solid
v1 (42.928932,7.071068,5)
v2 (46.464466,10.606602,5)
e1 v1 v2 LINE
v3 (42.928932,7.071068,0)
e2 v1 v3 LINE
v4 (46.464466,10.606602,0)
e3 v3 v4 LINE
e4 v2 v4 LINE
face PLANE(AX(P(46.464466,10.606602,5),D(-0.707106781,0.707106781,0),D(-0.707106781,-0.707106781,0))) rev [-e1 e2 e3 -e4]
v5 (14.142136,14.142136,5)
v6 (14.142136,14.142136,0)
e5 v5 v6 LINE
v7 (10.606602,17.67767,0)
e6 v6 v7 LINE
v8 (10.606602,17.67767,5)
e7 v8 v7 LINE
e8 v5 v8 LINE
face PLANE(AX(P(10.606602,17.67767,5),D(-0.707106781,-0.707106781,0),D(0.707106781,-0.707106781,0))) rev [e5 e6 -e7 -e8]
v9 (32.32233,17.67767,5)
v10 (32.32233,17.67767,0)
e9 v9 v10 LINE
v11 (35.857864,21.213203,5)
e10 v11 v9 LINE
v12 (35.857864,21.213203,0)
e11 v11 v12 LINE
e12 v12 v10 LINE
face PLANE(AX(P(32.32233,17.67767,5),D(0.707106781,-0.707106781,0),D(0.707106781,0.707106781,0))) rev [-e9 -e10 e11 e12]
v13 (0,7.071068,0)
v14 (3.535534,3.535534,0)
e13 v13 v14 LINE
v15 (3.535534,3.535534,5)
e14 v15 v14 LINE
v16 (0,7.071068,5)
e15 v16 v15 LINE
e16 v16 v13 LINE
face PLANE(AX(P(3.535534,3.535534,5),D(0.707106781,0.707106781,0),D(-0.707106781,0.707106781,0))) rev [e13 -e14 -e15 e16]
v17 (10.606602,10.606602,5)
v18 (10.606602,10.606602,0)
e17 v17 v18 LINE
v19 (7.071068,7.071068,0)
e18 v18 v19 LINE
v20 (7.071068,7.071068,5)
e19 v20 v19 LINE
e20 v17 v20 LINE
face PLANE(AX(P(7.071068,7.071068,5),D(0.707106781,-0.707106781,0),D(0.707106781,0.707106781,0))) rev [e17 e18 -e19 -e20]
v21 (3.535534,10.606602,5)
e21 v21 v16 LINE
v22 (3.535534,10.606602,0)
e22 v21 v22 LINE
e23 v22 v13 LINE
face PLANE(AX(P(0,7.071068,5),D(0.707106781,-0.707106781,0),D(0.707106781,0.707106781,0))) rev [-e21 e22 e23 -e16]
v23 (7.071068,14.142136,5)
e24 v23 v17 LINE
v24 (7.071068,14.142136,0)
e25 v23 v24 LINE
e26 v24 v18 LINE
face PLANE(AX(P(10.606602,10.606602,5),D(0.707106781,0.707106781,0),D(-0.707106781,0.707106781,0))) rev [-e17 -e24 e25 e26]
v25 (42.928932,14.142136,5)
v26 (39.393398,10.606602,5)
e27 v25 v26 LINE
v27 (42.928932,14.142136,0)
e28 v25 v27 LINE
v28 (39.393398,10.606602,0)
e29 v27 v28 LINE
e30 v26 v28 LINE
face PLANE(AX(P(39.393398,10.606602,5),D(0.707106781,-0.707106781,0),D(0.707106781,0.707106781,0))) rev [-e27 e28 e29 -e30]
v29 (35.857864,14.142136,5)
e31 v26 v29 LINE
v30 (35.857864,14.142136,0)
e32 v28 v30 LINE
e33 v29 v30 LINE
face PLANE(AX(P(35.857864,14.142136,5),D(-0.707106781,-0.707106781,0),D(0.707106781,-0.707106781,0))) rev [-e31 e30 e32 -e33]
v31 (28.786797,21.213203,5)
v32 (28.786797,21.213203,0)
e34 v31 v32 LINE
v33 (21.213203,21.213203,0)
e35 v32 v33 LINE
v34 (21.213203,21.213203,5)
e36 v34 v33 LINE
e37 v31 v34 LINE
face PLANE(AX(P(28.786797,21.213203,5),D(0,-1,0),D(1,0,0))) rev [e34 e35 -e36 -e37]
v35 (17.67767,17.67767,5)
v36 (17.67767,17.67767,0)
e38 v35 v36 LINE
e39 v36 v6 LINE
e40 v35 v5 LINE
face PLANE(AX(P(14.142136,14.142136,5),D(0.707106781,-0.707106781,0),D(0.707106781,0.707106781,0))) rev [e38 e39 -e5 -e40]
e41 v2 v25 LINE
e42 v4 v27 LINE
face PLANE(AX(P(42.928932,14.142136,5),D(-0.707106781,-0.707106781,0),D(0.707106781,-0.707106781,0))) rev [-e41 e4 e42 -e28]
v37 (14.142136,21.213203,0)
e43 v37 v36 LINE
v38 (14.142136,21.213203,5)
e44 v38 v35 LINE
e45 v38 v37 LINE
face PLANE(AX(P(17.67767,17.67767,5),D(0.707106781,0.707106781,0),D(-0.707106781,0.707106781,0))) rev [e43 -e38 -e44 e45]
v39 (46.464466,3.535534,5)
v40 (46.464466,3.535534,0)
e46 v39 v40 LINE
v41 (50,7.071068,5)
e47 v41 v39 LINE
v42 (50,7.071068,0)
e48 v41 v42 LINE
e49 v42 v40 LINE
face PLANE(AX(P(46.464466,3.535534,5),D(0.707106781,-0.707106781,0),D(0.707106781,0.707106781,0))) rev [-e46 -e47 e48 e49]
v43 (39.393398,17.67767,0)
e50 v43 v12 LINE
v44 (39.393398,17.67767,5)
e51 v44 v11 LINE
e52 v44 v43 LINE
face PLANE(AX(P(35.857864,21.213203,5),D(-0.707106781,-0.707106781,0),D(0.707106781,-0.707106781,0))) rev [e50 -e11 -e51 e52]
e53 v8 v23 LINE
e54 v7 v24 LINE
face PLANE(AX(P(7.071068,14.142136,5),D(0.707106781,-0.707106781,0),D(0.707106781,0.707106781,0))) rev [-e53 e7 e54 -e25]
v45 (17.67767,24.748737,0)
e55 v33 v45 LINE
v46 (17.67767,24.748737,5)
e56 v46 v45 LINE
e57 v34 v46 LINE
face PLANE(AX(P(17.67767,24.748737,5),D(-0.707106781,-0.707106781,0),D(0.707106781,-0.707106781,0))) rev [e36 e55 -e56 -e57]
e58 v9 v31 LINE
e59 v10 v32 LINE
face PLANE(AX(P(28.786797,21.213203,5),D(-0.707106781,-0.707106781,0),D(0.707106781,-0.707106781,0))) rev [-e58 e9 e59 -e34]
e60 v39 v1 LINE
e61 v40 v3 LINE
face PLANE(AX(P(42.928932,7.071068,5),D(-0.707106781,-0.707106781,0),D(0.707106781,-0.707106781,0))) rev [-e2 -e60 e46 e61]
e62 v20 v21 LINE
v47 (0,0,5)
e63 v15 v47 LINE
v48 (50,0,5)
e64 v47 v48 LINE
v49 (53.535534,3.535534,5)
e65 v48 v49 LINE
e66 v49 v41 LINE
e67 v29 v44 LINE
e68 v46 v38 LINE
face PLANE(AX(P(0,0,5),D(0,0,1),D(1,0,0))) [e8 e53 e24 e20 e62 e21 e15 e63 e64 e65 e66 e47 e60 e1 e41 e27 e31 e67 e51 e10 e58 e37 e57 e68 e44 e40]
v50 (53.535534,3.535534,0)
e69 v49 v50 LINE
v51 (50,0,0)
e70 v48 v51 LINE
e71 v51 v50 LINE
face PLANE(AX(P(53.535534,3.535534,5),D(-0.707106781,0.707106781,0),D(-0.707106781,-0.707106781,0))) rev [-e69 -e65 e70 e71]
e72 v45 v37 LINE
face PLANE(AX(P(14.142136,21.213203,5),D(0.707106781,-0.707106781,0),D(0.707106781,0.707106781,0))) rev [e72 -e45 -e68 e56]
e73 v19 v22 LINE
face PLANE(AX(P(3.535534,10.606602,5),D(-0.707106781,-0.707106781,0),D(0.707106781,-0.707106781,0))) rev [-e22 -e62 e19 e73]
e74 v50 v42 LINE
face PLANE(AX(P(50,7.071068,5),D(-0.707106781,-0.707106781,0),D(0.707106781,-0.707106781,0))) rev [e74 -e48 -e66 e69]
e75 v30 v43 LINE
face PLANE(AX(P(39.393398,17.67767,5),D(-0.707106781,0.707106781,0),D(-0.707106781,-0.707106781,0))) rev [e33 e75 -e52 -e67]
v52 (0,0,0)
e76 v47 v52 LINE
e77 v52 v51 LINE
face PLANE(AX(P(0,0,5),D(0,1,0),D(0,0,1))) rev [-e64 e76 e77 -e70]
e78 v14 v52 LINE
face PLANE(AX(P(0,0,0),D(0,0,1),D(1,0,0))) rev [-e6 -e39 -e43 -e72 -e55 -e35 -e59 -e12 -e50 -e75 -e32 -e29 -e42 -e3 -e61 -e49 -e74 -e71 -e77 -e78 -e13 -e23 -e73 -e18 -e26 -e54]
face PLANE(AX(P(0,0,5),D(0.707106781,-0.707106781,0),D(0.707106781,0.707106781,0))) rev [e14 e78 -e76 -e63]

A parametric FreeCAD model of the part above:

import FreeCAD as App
import Part
import Sketcher

V = App.Vector
Q = App.Units.Quantity


def add_polygon(sketch, points):
    """Adds a closed chain of lines whose ends are joined by coincident constraints."""
    first, n = sketch.GeometryCount, len(points)
    for a, b in zip(points, points[1:] + points[:1]):
        sketch.addGeometry(Part.LineSegment(App.Vector(*a, 0), App.Vector(*b, 0)), False)
    for i in range(n):
        sketch.addConstraint(Sketcher.Constraint("Coincident", first + i, 2, first + (i + 1) % n, 1))

doc = App.newDocument("Part")
body = doc.addObject("PartDesign::Body", "Body")

# Sketch on XY plane
sketch1 = body.newObject("Sketcher::SketchObject", "Sketch")
sketch1.AttachmentSupport = (doc.getObject("XY_Plane"), [""])
sketch1.MapMode = "FlatFace"
add_polygon(sketch1, [(0, 0), (50, 0), (54, 4), (50, 7), (46, 4), (43, 7), (46, 11), (43, 14), (39, 11), (36, 14), (39, 18), (36, 21), (32, 18), (29, 21), (21, 21), (18, 25), (14, 21), (18, 18), (14, 14), (11, 18), (7, 14), (11, 11), (7, 7), (4, 11), (0, 7), (4, 4)])  # lines 0-25
sketch1.addConstraint([
    Sketcher.Constraint("Horizontal", 0),
    Sketcher.Constraint("Horizontal", 13),
    Sketcher.Constraint("Coincident", 25, 2, -1, 1),
    Sketcher.Constraint("PointOnObject", 23, 2, -2),
    Sketcher.Constraint("Perpendicular", 1, 2),
    Sketcher.Constraint("Perpendicular", 2, 3),
    Sketcher.Constraint("Perpendicular", 3, 4),
    Sketcher.Constraint("Perpendicular", 4, 5),
    Sketcher.Constraint("Perpendicular", 5, 6),
    Sketcher.Constraint("Perpendicular", 6, 7),
    Sketcher.Constraint("Perpendicular", 7, 8),
    Sketcher.Constraint("Perpendicular", 8, 9),
    Sketcher.Constraint("Perpendicular", 9, 10),
    Sketcher.Constraint("Perpendicular", 10, 11),
    Sketcher.Constraint("Perpendicular", 11, 12),
    Sketcher.Constraint("Parallel", 12, 14),
    Sketcher.Constraint("Perpendicular", 14, 15),
    Sketcher.Constraint("Perpendicular", 15, 16),
    Sketcher.Constraint("Perpendicular", 16, 17),
    Sketcher.Constraint("Perpendicular", 17, 18),
    Sketcher.Constraint("Perpendicular", 18, 19),
    Sketcher.Constraint("Perpendicular", 19, 20),
    Sketcher.Constraint("Perpendicular", 20, 21),
    Sketcher.Constraint("Perpendicular", 21, 22),
    Sketcher.Constraint("Perpendicular", 22, 23),
    Sketcher.Constraint("Perpendicular", 23, 24),
    Sketcher.Constraint("Perpendicular", 24, 25),
    Sketcher.Constraint("Horizontal", 1, 2, 3, 2),
    Sketcher.Constraint("Horizontal", 2, 2, 4, 2),
    Sketcher.Constraint("Horizontal", 5, 2, 7, 2),
    Sketcher.Constraint("Horizontal", 6, 2, 8, 2),
    Sketcher.Constraint("Horizontal", 9, 2, 11, 2),
    Sketcher.Constraint("Horizontal", 10, 2, 12, 2),
    Sketcher.Constraint("Horizontal", 13, 2, 15, 2),
    Sketcher.Constraint("Horizontal", 11, 2, 16, 2),
    Sketcher.Constraint("Horizontal", 8, 2, 17, 2),
    Sketcher.Constraint("Horizontal", 16, 2, 18, 2),
    Sketcher.Constraint("Horizontal", 17, 2, 19, 2),
    Sketcher.Constraint("Horizontal", 7, 2, 20, 2),
    Sketcher.Constraint("Horizontal", 4, 2, 21, 2),
    Sketcher.Constraint("Horizontal", 20, 2, 22, 2),
    Sketcher.Constraint("Horizontal", 21, 2, 23, 2),
    Sketcher.Constraint("Horizontal", 3, 2, 24, 2),
    Sketcher.Constraint("Vertical", 3, 2, 5, 2),
    Sketcher.Constraint("Vertical", 4, 2, 6, 2),
    Sketcher.Constraint("Vertical", 7, 2, 9, 2),
    Sketcher.Constraint("Vertical", 8, 2, 10, 2),
    Sketcher.Constraint("Vertical", 14, 2, 16, 2),
    Sketcher.Constraint("Equal", 1, 2),
    Sketcher.Constraint("DistanceX", 0, 1, 0, 2, Q("50 mm")),
    Sketcher.Constraint("Distance", 1, Q("5 mm")),
])
pad1 = body.newObject("PartDesign::Pad", "Pad")
pad1.Profile = sketch1
pad1.Length = 5

doc.recompute()
